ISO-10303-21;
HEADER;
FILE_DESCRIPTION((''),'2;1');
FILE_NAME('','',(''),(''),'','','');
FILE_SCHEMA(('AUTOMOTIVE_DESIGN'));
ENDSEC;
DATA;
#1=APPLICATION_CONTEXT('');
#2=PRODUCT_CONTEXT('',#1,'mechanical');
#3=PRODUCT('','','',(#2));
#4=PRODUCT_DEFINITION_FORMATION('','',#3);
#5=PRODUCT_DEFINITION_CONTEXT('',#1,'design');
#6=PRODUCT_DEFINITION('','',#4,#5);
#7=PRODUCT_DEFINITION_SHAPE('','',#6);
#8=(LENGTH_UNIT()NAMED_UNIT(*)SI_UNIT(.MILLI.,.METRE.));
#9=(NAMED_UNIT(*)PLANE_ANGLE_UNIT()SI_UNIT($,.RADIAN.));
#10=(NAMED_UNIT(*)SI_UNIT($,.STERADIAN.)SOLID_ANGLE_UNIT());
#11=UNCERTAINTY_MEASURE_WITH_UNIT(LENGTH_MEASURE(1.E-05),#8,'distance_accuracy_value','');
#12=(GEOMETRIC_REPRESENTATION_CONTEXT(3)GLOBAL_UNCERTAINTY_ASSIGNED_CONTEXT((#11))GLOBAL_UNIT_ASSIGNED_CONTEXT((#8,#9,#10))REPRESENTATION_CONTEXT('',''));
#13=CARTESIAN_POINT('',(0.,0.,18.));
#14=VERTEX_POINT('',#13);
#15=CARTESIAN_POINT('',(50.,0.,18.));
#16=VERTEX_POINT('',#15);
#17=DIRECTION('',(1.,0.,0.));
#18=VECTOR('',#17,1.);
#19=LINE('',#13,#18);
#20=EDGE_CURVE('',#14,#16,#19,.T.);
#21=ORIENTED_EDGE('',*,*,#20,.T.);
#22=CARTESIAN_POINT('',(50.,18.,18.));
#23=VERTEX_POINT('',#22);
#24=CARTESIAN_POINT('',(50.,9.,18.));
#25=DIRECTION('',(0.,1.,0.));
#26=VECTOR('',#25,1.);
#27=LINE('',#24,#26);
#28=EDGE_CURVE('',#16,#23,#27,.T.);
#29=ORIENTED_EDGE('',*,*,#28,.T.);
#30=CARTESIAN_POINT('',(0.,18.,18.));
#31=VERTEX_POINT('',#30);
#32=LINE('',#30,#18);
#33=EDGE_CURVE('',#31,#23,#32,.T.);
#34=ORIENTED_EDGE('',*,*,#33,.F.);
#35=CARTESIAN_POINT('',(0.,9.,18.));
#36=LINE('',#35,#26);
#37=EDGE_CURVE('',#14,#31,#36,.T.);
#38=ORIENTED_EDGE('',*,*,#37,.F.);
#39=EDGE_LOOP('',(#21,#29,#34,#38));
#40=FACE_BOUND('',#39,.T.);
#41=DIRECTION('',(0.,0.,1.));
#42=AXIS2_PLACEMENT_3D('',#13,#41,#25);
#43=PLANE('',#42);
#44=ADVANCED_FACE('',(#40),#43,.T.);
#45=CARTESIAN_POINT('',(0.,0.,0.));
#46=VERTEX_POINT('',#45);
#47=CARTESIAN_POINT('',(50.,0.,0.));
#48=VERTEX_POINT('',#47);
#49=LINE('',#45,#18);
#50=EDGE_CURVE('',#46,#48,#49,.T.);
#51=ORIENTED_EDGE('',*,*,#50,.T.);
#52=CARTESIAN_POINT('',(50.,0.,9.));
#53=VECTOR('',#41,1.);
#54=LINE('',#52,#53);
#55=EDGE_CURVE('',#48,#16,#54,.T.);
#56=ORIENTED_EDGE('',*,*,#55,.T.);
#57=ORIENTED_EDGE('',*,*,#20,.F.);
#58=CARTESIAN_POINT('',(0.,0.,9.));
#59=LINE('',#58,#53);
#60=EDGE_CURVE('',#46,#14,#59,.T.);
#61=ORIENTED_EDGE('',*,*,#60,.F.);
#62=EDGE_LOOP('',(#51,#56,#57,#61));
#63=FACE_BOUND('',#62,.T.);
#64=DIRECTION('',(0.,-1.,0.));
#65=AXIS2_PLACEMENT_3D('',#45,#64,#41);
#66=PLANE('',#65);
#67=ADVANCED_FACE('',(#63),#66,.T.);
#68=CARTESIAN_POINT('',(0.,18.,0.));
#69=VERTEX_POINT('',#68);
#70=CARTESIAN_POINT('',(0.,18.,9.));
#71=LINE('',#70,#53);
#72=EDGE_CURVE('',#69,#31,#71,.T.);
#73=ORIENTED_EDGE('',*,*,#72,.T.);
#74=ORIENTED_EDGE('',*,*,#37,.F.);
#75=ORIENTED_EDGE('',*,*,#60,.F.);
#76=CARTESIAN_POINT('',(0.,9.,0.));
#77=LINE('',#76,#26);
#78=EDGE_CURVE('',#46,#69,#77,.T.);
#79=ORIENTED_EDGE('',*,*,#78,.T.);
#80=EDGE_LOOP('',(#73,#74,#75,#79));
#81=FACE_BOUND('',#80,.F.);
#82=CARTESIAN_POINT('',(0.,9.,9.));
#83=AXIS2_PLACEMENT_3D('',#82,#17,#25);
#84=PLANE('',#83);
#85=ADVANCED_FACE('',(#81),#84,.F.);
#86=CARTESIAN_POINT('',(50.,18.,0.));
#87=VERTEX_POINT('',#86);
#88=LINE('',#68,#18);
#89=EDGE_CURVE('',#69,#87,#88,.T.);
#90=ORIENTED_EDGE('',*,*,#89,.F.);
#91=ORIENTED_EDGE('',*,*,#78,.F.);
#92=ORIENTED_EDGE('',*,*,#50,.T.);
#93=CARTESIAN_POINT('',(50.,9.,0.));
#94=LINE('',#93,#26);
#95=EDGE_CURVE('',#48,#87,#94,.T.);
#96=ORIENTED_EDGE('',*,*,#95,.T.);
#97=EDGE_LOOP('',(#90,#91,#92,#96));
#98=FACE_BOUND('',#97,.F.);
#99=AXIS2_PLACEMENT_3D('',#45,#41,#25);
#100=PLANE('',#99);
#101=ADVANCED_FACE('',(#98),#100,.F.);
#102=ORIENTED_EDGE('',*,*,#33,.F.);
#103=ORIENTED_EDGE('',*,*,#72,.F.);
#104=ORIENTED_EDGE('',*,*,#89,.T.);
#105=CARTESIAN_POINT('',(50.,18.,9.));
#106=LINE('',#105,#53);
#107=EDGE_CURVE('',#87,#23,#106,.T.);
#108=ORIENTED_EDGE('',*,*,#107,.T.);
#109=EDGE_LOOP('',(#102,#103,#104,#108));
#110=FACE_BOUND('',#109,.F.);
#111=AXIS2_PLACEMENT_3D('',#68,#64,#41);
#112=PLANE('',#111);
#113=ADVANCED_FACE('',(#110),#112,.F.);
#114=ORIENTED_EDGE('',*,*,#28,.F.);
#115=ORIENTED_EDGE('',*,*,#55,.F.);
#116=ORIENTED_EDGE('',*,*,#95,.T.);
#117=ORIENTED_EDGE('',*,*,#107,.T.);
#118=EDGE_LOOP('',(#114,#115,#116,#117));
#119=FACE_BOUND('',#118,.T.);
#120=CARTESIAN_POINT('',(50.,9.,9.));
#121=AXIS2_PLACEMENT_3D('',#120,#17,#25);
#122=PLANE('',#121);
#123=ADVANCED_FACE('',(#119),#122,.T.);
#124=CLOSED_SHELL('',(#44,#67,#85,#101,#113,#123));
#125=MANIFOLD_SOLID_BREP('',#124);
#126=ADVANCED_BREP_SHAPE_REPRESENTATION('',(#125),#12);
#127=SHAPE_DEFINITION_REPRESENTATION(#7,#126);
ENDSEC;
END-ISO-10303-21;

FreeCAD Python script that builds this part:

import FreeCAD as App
import Part
import Sketcher

doc = App.newDocument("Part")
body = doc.addObject("PartDesign::Body", "Body")

sketch1 = body.newObject("Sketcher::SketchObject", "Sketch")
sketch1.AttachmentSupport = (doc.getObject("YZ_Plane"), [""])
sketch1.MapMode = "FlatFace"
sketch1.addGeometry([
    Part.LineSegment(App.Vector(0, 18, 0), App.Vector(0, 0, 0)),
    Part.LineSegment(App.Vector(0, 0, 0), App.Vector(18, 0, 0)),
    Part.LineSegment(App.Vector(18, 0, 0), App.Vector(18, 18, 0)),
    Part.LineSegment(App.Vector(18, 18, 0), App.Vector(0, 18, 0)),
], False)
sketch1.addConstraint([
    Sketcher.Constraint("Coincident", 0, 2, 1, 1),
    Sketcher.Constraint("Coincident", 1, 2, 2, 1),
    Sketcher.Constraint("Coincident", 2, 2, 3, 1),
    Sketcher.Constraint("Coincident", 3, 2, 0, 1),
    Sketcher.Constraint("Vertical", 0),
    Sketcher.Constraint("Horizontal", 1),
    Sketcher.Constraint("Vertical", 2),
    Sketcher.Constraint("Horizontal", 3),
    Sketcher.Constraint("Coincident", 0, 2, -1, 1),
    Sketcher.Constraint("Equal", 3, 0),
    Sketcher.Constraint("DistanceX", 1, 1, 1, 2, 18.0),
])
pad1 = body.newObject("PartDesign::Pad", "Pad")
pad1.Profile = sketch1
pad1.Length = 50

doc.recompute()
